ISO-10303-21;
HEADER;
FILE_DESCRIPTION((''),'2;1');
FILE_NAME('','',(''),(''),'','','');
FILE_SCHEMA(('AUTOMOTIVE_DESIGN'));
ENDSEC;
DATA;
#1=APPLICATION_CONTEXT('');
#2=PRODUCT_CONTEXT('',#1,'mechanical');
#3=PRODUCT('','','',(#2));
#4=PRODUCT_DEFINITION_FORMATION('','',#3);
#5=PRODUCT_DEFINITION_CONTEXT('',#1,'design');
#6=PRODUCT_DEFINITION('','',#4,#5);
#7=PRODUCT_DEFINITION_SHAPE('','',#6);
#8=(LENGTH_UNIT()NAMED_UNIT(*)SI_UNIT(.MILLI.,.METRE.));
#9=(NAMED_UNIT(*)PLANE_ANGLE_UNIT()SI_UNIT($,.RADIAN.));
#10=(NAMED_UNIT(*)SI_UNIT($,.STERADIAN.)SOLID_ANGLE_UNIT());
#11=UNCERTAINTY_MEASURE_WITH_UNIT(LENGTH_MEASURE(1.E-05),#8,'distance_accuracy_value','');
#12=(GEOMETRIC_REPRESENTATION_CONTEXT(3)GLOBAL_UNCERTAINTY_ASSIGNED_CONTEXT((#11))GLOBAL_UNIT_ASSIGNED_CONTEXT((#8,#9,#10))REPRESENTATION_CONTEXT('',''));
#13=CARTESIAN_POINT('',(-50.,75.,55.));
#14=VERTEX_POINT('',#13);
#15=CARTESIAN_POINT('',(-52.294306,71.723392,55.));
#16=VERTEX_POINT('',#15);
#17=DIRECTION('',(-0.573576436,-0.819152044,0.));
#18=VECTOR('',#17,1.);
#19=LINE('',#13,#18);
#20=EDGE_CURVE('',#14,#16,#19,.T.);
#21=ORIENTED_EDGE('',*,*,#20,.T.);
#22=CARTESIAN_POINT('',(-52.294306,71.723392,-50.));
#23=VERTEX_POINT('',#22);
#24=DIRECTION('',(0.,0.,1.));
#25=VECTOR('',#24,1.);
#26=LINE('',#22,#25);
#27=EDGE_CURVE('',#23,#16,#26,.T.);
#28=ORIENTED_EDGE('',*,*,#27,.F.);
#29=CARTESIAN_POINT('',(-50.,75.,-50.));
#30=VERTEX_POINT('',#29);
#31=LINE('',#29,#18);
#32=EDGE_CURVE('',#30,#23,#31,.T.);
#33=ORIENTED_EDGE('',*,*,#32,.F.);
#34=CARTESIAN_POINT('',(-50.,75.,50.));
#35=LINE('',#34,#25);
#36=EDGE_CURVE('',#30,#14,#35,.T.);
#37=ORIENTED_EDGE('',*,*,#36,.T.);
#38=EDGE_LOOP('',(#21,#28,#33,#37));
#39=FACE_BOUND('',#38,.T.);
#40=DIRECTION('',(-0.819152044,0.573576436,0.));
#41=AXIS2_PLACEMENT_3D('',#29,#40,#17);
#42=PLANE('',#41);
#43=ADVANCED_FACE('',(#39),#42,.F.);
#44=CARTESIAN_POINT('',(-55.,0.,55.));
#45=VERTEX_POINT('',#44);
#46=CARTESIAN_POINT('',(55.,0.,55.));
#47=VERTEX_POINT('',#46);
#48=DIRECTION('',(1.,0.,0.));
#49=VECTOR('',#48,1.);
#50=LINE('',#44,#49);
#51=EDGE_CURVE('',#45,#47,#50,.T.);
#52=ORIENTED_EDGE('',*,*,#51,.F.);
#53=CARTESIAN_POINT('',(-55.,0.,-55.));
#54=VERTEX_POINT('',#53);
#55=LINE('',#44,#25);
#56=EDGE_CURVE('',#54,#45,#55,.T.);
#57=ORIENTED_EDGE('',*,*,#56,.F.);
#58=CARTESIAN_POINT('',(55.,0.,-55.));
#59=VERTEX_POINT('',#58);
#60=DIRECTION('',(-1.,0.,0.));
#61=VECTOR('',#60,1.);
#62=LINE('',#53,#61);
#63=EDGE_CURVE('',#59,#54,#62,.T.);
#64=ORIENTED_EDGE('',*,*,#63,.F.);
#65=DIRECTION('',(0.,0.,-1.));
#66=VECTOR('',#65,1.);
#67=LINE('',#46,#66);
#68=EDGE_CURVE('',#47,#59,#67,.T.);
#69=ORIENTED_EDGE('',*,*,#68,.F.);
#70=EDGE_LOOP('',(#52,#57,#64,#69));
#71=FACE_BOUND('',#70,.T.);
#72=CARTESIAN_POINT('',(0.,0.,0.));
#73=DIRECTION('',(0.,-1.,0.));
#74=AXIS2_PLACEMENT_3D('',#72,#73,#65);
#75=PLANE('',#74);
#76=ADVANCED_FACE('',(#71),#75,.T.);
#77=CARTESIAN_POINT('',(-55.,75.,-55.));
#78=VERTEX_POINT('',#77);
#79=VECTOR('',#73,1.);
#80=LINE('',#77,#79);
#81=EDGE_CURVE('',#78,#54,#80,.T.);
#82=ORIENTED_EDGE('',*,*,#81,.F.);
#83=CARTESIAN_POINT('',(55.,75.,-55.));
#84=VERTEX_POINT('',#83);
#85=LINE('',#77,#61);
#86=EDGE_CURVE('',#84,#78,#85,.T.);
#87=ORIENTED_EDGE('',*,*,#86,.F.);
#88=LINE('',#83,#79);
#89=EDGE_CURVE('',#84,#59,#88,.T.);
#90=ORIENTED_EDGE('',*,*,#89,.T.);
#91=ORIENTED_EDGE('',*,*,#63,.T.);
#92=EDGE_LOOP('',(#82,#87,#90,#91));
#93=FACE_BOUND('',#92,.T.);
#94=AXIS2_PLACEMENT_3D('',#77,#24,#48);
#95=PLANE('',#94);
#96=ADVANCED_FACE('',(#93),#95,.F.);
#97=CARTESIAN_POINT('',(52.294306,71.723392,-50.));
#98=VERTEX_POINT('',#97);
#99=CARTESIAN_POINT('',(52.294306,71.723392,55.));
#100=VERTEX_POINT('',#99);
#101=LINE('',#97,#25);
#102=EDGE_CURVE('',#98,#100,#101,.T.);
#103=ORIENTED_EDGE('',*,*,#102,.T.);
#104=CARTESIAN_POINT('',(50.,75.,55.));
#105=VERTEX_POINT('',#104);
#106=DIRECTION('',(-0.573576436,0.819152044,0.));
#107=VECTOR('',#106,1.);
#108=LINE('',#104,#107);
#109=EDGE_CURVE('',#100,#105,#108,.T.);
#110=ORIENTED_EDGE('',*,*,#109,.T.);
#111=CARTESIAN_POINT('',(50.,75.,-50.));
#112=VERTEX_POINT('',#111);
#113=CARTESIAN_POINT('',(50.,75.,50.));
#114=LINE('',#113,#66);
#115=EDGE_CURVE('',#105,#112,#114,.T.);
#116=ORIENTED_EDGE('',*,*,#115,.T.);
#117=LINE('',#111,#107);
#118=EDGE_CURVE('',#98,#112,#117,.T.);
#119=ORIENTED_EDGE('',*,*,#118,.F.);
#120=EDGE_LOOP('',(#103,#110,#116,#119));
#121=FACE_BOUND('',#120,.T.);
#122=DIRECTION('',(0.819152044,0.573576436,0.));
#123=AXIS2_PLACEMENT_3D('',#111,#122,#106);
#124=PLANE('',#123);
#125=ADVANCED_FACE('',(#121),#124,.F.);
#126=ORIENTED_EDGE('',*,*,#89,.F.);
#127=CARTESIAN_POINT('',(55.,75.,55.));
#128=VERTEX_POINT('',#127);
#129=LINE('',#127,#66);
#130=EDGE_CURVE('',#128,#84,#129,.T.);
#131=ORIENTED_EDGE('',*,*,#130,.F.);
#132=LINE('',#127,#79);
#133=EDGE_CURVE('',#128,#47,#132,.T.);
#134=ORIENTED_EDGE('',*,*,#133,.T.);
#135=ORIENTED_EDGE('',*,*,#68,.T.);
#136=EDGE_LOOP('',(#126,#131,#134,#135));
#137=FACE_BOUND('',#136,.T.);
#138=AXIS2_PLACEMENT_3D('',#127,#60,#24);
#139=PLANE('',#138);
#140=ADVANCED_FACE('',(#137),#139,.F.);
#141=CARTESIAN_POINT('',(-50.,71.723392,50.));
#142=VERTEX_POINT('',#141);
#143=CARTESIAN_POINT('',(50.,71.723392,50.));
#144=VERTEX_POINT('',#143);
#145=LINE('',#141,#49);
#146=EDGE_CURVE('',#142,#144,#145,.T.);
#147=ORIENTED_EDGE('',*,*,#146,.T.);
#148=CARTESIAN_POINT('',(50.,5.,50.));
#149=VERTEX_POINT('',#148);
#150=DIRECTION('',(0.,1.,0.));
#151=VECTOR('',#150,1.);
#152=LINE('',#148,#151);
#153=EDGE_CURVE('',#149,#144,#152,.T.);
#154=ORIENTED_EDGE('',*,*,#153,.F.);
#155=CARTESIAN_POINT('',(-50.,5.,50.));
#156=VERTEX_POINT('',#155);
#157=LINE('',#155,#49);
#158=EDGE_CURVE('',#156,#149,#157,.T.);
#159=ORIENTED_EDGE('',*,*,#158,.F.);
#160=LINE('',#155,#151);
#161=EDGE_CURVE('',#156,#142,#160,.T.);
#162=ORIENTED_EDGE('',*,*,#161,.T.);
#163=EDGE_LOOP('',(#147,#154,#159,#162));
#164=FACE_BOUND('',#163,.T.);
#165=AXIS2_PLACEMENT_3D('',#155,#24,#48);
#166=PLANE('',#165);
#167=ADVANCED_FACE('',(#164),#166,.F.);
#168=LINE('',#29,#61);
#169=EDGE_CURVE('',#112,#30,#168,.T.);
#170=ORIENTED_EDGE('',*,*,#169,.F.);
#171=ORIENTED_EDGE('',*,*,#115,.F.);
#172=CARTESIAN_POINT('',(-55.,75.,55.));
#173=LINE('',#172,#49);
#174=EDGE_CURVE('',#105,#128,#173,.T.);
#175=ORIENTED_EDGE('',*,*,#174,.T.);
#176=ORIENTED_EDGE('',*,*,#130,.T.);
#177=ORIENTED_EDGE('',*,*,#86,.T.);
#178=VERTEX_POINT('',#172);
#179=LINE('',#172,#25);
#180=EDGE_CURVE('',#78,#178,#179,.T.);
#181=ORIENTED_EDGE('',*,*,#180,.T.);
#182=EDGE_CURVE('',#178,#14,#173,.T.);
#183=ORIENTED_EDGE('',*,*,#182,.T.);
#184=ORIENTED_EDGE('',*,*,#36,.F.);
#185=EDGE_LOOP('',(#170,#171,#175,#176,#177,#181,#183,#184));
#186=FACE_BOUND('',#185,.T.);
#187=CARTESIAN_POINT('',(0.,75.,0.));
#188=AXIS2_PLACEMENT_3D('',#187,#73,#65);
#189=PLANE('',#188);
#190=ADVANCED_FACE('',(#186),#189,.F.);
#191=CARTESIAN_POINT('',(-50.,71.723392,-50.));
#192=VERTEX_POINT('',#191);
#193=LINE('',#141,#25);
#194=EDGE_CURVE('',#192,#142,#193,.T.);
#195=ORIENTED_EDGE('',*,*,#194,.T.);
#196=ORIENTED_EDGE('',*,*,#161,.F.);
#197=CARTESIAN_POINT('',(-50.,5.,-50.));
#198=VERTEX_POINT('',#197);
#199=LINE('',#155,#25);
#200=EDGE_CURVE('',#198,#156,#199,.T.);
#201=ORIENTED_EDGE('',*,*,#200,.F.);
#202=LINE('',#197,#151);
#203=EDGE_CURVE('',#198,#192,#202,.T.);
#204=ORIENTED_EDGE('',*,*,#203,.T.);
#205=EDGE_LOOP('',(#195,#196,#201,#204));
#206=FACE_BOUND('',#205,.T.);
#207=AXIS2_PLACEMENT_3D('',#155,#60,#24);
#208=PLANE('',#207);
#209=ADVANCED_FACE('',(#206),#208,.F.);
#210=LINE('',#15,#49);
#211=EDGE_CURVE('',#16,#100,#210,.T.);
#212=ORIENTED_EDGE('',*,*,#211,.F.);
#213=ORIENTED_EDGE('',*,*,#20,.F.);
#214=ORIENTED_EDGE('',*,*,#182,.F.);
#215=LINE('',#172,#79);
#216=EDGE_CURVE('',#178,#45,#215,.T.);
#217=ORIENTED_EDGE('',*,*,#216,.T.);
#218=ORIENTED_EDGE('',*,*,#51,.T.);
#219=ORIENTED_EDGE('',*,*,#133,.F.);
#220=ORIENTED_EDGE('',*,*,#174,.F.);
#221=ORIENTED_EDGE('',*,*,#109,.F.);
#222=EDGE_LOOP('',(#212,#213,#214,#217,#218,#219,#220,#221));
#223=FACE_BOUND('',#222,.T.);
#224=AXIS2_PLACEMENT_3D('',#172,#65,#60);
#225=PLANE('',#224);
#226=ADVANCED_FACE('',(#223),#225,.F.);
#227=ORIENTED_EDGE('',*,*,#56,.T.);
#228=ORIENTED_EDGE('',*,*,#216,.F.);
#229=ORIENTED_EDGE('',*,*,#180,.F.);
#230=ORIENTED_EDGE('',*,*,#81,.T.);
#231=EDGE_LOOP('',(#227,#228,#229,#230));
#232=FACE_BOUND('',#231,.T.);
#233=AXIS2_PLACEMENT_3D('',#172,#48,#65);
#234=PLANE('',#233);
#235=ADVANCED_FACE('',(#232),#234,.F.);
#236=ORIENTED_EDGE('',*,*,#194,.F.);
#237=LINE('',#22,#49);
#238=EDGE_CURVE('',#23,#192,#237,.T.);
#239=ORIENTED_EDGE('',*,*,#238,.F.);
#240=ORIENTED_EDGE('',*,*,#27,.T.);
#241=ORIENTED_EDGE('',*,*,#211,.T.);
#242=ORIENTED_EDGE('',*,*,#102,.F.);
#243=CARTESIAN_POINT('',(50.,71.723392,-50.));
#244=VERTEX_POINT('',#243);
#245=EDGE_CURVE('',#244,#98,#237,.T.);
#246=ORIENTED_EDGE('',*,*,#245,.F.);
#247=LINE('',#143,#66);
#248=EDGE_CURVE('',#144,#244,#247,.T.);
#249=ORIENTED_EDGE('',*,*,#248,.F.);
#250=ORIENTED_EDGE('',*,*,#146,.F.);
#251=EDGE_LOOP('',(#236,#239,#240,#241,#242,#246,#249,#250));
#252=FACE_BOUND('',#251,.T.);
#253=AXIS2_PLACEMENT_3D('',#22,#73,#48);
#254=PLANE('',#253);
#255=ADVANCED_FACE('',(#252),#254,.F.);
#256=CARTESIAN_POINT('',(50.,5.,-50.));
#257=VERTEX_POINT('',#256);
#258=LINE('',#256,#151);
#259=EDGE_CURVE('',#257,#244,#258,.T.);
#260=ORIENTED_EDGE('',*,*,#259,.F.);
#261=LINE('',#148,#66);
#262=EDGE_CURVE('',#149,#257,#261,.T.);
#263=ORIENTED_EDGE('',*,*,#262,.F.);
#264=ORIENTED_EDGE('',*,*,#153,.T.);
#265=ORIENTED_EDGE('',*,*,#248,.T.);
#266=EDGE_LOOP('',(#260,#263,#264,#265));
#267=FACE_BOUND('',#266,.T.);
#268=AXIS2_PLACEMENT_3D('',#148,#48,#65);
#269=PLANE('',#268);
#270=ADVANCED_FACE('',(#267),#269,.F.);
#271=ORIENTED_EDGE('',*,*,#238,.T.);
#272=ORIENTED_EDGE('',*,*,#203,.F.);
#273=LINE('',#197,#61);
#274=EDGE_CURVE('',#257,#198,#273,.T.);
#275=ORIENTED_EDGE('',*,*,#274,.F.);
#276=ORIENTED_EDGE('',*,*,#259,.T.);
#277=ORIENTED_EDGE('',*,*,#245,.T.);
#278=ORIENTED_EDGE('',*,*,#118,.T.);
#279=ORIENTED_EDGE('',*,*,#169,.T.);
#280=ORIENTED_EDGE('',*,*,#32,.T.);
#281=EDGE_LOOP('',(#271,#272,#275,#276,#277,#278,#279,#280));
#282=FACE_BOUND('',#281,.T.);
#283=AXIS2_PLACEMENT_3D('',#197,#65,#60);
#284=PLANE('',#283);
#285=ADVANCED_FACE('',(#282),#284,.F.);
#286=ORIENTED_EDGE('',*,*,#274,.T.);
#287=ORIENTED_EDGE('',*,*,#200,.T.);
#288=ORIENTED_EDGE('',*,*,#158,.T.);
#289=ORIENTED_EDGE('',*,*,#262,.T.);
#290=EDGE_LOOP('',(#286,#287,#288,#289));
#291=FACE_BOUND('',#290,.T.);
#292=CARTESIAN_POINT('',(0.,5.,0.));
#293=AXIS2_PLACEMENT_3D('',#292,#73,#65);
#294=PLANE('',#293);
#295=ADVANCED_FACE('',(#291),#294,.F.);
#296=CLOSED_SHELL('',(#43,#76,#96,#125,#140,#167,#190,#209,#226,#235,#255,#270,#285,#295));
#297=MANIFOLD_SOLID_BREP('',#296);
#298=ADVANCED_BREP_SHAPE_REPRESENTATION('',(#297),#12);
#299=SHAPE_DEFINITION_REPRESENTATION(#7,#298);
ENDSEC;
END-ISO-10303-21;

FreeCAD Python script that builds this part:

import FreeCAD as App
import Part
import Sketcher
from FreeCAD import Vector
Q = App.Units.Quantity


def add_polygon(sketch, points):
    """Adds a closed chain of lines whose ends are joined by coincident constraints."""
    first, n = sketch.GeometryCount, len(points)
    for a, b in zip(points, points[1:] + points[:1]):
        sketch.addGeometry(Part.LineSegment(App.Vector(*a, 0), App.Vector(*b, 0)), False)
    for i in range(n):
        sketch.addConstraint(Sketcher.Constraint("Coincident", first + i, 2, first + (i + 1) % n, 1))

doc = App.newDocument("Part")
body = doc.addObject("PartDesign::Body", "Body")

sketch1 = body.newObject("Sketcher::SketchObject", "Sketch")
sketch1.AttachmentSupport = (doc.getObject("XZ_Plane"), [""])
sketch1.MapMode = "FlatFace"
add_polygon(sketch1, [(-55, -55), (-55, 55), (55, 55), (55, -55)])
sketch1.addConstraint([
    Sketcher.Constraint("Vertical", 0),
    Sketcher.Constraint("Horizontal", 1),
    Sketcher.Constraint("Vertical", 2),
    Sketcher.Constraint("Horizontal", 3),
    Sketcher.Constraint("Symmetric", 0, 2, 2, 2, -1, 1),
    Sketcher.Constraint("Equal", 3, 0),
    Sketcher.Constraint("DistanceX", 1, 1, 1, 2, Q("110 mm")),
])
pad1 = body.newObject("PartDesign::Pad", "Pad")
pad1.Profile = sketch1
pad1.Length = 75
pad1.Reversed = True

sketch2 = body.newObject("Sketcher::SketchObject", "Sketch001")
sketch2.AttachmentSupport = (doc.getObject("XZ_Plane"), [""])
sketch2.MapMode = "FlatFace"
sketch2.AttachmentOffset = App.Placement(Vector(0, 0, -75), App.Rotation())
add_polygon(sketch2, [(-50, -50), (-50, 50), (50, 50), (50, -50)])
sketch2.addConstraint([
    Sketcher.Constraint("Vertical", 0),
    Sketcher.Constraint("Horizontal", 1),
    Sketcher.Constraint("Vertical", 2),
    Sketcher.Constraint("Horizontal", 3),
    Sketcher.Constraint("Symmetric", 0, 2, 2, 2, -1, 1),
    Sketcher.Constraint("Equal", 3, 0),
    Sketcher.Constraint("DistanceX", 1, 1, 1, 2, Q("100 mm")),
])
pocket1 = body.newObject("PartDesign::Pocket", "Pocket")
pocket1.Profile = sketch2
pocket1.Length = 70
pocket1.Reversed = True

sketch3 = body.newObject("Sketcher::SketchObject", "Sketch002")
sketch3.AttachmentSupport = (doc.getObject("XY_Plane"), [""])
sketch3.MapMode = "FlatFace"
sketch3.AttachmentOffset = App.Placement(Vector(0, 0, -50), App.Rotation())
add_polygon(sketch3, [(52.3, 71.7), (50, 75), (-50, 75), (-52.3, 71.7)])
sketch3.addConstraint([
    Sketcher.Constraint("Horizontal", 1),
    Sketcher.Constraint("Horizontal", 3),
    Sketcher.Constraint("Equal", 0, 2),
    Sketcher.Constraint("DistanceX", 1, 2, 1, 1, Q("100 mm")),
    Sketcher.Constraint("Angle", 0, Q("125 deg")),
    Sketcher.Constraint("Distance", 0, Q("4 mm")),
    Sketcher.Constraint("DistanceX", -1, 1, 0, 2, Q("50 mm")),
    Sketcher.Constraint("DistanceY", -1, 1, 0, 2, Q("75 mm")),
])
pocket2 = body.newObject("PartDesign::Pocket", "Pocket001")
pocket2.Profile = sketch3
pocket2.Length = 105
pocket2.Reversed = True

doc.recompute()
